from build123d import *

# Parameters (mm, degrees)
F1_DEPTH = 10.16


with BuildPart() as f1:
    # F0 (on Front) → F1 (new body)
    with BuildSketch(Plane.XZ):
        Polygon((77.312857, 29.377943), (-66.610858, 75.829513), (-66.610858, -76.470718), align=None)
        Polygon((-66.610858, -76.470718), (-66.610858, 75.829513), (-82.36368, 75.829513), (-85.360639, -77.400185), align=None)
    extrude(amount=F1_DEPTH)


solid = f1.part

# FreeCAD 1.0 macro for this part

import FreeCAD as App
import Part
import Sketcher
Q = App.Units.Quantity


def add_polygon(sketch, points):
    """Adds a closed chain of lines whose ends are joined by coincident constraints."""
    first, n = sketch.GeometryCount, len(points)
    for a, b in zip(points, points[1:] + points[:1]):
        sketch.addGeometry(Part.LineSegment(App.Vector(*a, 0), App.Vector(*b, 0)), False)
    for i in range(n):
        sketch.addConstraint(Sketcher.Constraint("Coincident", first + i, 2, first + (i + 1) % n, 1))

doc = App.newDocument("Part")
body = doc.addObject("PartDesign::Body", "Body")

# Sketch on XZ plane
sketch1 = doc.addObject("Sketcher::SketchObject", "Sketch")
body.addObject(sketch1)
sketch1.AttachmentSupport = (doc.XZ_Plane, [""])
sketch1.MapMode = "FlatFace"
add_polygon(sketch1, [(77, 29), (-67, 76), (-82, 76), (-85, -77), (-67, -76)])  # lines 0-4
sketch1.addConstraint(Sketcher.Constraint("Horizontal", 1))
sketch1.addConstraint(Sketcher.Constraint("Vertical", 0, 2, 3, 2))
sketch1.addConstraint(Sketcher.Constraint("DistanceX", 1, 2, 1, 1, Q("15.752822 mm")))
sketch1.addConstraint(Sketcher.Constraint("DistanceX", 1, 2, -1, 1, Q("82.36368 mm")))
sketch1.addConstraint(Sketcher.Constraint("DistanceX", 2, 2, -1, 1, Q("85.360639 mm")))
sketch1.addConstraint(Sketcher.Constraint("DistanceY", 3, 2, -1, 1, Q("76.470718 mm")))
sketch1.addConstraint(Sketcher.Constraint("DistanceY", 3, 2, 0, 2, Q("152.300231 mm")))
sketch1.addConstraint(Sketcher.Constraint("DistanceY", 4, 2, 0, 2, Q("46.45157 mm")))
sketch1.addConstraint(Sketcher.Constraint("Distance", 0, Q("151.234203 mm")))
sketch1.addConstraint(Sketcher.Constraint("Distance", 2, Q("153.259003 mm")))
pad1 = doc.addObject("PartDesign::Pad", "Pad")
body.addObject(pad1)
pad1.Profile = sketch1
pad1.Length = Q("0.4 in")

doc.recompute()
